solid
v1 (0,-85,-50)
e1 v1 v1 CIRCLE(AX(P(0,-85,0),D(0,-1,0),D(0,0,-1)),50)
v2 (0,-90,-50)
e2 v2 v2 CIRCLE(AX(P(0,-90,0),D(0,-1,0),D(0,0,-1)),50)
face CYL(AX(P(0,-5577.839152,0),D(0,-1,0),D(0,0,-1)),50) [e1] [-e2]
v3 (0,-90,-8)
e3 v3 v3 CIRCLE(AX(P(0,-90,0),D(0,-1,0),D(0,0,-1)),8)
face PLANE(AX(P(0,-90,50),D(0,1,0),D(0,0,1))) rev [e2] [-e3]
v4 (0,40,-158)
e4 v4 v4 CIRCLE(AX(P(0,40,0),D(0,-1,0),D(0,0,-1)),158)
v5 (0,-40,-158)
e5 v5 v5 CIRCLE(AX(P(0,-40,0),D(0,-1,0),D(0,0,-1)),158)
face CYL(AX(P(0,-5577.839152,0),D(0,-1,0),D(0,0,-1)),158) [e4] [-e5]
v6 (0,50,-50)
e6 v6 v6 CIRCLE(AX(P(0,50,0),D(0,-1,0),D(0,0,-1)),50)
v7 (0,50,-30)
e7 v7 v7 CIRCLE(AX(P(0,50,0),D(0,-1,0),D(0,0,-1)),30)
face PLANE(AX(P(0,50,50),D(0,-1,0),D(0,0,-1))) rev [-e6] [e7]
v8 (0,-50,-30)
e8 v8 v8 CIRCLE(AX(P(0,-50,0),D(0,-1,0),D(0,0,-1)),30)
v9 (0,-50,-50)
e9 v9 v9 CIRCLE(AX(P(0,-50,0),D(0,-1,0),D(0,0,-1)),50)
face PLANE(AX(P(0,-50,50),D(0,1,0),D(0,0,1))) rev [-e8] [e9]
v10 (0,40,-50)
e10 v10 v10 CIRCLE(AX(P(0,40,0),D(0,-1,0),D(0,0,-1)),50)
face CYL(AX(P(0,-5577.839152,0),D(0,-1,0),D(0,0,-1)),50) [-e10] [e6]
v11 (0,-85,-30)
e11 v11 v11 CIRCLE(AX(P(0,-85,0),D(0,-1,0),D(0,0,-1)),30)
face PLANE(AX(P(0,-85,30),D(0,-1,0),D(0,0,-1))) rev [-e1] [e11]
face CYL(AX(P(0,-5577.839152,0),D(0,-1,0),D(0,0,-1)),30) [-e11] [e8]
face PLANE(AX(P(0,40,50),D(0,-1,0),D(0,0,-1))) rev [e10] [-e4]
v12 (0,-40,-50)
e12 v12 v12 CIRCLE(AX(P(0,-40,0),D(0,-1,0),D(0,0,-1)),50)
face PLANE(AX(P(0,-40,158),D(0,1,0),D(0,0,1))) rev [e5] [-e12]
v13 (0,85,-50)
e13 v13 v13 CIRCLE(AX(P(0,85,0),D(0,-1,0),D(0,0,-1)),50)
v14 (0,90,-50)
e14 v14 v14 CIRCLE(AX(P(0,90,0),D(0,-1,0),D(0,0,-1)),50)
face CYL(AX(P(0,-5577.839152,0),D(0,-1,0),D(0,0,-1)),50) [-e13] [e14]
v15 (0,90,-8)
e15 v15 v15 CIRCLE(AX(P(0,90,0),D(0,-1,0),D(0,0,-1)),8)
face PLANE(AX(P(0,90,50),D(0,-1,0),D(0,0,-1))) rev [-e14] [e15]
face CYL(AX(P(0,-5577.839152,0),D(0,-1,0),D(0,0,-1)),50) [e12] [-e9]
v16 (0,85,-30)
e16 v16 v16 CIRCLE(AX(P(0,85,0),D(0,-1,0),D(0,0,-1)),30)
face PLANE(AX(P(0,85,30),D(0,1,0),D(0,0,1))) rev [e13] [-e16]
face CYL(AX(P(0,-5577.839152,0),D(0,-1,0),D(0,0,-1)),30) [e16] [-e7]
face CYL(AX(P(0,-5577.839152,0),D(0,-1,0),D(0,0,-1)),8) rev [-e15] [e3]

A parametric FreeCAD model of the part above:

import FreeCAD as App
import Part
import Sketcher

doc = App.newDocument("Part")
body = doc.addObject("PartDesign::Body", "Body")

# Sketch on YZ plane
sketch1 = body.newObject("Sketcher::SketchObject", "Sketch")
sketch1.AttachmentSupport = (doc.getObject("YZ_Plane"), [""])
sketch1.MapMode = "FlatFace"
sketch1.addGeometry([
    Part.LineSegment(App.Vector(40, 50, 0), App.Vector(40, 158, 0)),  # 0
    Part.LineSegment(App.Vector(40, 158, 0), App.Vector(-40, 158, 0)),  # 1
    Part.LineSegment(App.Vector(-40, 158, 0), App.Vector(-40, 50, 0)),  # 2
    Part.LineSegment(App.Vector(-40, 50, 0), App.Vector(-50, 50, 0)),  # 3
    Part.LineSegment(App.Vector(-50, 50, 0), App.Vector(-50, 30, 0)),  # 4
    Part.LineSegment(App.Vector(-50, 30, 0), App.Vector(-85, 30, 0)),  # 5
    Part.LineSegment(App.Vector(-85, 30, 0), App.Vector(-85, 50, 0)),  # 6
    Part.LineSegment(App.Vector(-85, 50, 0), App.Vector(-90, 50, 0)),  # 7
    Part.LineSegment(App.Vector(-90, 50, 0), App.Vector(-90, 8, 0)),  # 8
    Part.LineSegment(App.Vector(-90, 8, 0), App.Vector(90, 8, 0)),  # 9
    Part.LineSegment(App.Vector(90, 8, 0), App.Vector(90, 50, 0)),  # 10
    Part.LineSegment(App.Vector(90, 50, 0), App.Vector(85, 50, 0)),  # 11
    Part.LineSegment(App.Vector(85, 50, 0), App.Vector(85, 30, 0)),  # 12
    Part.LineSegment(App.Vector(85, 30, 0), App.Vector(50, 30, 0)),  # 13
    Part.LineSegment(App.Vector(50, 30, 0), App.Vector(50, 50, 0)),  # 14
    Part.LineSegment(App.Vector(50, 50, 0), App.Vector(40, 50, 0)),  # 15
], False)
sketch1.addConstraint([
    Sketcher.Constraint("Coincident", 0, 2, 1, 1),
    Sketcher.Constraint("Coincident", 1, 2, 2, 1),
    Sketcher.Constraint("Coincident", 2, 2, 3, 1),
    Sketcher.Constraint("Coincident", 3, 2, 4, 1),
    Sketcher.Constraint("Coincident", 4, 2, 5, 1),
    Sketcher.Constraint("Coincident", 5, 2, 6, 1),
    Sketcher.Constraint("Coincident", 6, 2, 7, 1),
    Sketcher.Constraint("Coincident", 7, 2, 8, 1),
    Sketcher.Constraint("Coincident", 8, 2, 9, 1),
    Sketcher.Constraint("Coincident", 9, 2, 10, 1),
    Sketcher.Constraint("Coincident", 10, 2, 11, 1),
    Sketcher.Constraint("Coincident", 11, 2, 12, 1),
    Sketcher.Constraint("Coincident", 12, 2, 13, 1),
    Sketcher.Constraint("Coincident", 13, 2, 14, 1),
    Sketcher.Constraint("Coincident", 14, 2, 15, 1),
    Sketcher.Constraint("Coincident", 15, 2, 0, 1),
    Sketcher.Constraint("Vertical", 0),
    Sketcher.Constraint("Horizontal", 1),
    Sketcher.Constraint("Vertical", 2),
    Sketcher.Constraint("Horizontal", 3),
    Sketcher.Constraint("Vertical", 4),
    Sketcher.Constraint("Horizontal", 5),
    Sketcher.Constraint("Vertical", 6),
    Sketcher.Constraint("Horizontal", 7),
    Sketcher.Constraint("Vertical", 8),
    Sketcher.Constraint("Horizontal", 9),
    Sketcher.Constraint("Vertical", 10),
    Sketcher.Constraint("Horizontal", 11),
    Sketcher.Constraint("Vertical", 12),
    Sketcher.Constraint("Horizontal", 13),
    Sketcher.Constraint("Vertical", 14),
    Sketcher.Constraint("Horizontal", 15),
    Sketcher.Constraint("Symmetric", 7, 2, 10, 2, -2),
    Sketcher.Constraint("Symmetric", 5, 2, 12, 2, -2),
    Sketcher.Constraint("Symmetric", 3, 2, 14, 2, -2),
    Sketcher.Constraint("Horizontal", 3, 2, 6, 2),
    Sketcher.Constraint("Equal", 3, 15),
    Sketcher.Constraint("DistanceX", 1, 2, 1, 1, 80.0),
    Sketcher.Constraint("DistanceX", 3, 2, 3, 1, 10.0),
    Sketcher.Constraint("DistanceX", 5, 2, 5, 1, 35.0),
    Sketcher.Constraint("DistanceX", 7, 2, 7, 1, 5.0),
    Sketcher.Constraint("DistanceY", 0, 1, 0, 2, 108.0),
    Sketcher.Constraint("DistanceY", 4, 2, 4, 1, 20.0),
    Sketcher.Constraint("DistanceY", 8, 2, 8, 1, 42.0),
    Sketcher.Constraint("DistanceY", -1, 1, 0, 2, 158.0),
])
revolution = body.newObject("PartDesign::Revolution", "Revolution")
revolution.Profile = sketch1
revolution.ReferenceAxis = (sketch1, ["H_Axis"])
revolution.Angle = 360

doc.recompute()
